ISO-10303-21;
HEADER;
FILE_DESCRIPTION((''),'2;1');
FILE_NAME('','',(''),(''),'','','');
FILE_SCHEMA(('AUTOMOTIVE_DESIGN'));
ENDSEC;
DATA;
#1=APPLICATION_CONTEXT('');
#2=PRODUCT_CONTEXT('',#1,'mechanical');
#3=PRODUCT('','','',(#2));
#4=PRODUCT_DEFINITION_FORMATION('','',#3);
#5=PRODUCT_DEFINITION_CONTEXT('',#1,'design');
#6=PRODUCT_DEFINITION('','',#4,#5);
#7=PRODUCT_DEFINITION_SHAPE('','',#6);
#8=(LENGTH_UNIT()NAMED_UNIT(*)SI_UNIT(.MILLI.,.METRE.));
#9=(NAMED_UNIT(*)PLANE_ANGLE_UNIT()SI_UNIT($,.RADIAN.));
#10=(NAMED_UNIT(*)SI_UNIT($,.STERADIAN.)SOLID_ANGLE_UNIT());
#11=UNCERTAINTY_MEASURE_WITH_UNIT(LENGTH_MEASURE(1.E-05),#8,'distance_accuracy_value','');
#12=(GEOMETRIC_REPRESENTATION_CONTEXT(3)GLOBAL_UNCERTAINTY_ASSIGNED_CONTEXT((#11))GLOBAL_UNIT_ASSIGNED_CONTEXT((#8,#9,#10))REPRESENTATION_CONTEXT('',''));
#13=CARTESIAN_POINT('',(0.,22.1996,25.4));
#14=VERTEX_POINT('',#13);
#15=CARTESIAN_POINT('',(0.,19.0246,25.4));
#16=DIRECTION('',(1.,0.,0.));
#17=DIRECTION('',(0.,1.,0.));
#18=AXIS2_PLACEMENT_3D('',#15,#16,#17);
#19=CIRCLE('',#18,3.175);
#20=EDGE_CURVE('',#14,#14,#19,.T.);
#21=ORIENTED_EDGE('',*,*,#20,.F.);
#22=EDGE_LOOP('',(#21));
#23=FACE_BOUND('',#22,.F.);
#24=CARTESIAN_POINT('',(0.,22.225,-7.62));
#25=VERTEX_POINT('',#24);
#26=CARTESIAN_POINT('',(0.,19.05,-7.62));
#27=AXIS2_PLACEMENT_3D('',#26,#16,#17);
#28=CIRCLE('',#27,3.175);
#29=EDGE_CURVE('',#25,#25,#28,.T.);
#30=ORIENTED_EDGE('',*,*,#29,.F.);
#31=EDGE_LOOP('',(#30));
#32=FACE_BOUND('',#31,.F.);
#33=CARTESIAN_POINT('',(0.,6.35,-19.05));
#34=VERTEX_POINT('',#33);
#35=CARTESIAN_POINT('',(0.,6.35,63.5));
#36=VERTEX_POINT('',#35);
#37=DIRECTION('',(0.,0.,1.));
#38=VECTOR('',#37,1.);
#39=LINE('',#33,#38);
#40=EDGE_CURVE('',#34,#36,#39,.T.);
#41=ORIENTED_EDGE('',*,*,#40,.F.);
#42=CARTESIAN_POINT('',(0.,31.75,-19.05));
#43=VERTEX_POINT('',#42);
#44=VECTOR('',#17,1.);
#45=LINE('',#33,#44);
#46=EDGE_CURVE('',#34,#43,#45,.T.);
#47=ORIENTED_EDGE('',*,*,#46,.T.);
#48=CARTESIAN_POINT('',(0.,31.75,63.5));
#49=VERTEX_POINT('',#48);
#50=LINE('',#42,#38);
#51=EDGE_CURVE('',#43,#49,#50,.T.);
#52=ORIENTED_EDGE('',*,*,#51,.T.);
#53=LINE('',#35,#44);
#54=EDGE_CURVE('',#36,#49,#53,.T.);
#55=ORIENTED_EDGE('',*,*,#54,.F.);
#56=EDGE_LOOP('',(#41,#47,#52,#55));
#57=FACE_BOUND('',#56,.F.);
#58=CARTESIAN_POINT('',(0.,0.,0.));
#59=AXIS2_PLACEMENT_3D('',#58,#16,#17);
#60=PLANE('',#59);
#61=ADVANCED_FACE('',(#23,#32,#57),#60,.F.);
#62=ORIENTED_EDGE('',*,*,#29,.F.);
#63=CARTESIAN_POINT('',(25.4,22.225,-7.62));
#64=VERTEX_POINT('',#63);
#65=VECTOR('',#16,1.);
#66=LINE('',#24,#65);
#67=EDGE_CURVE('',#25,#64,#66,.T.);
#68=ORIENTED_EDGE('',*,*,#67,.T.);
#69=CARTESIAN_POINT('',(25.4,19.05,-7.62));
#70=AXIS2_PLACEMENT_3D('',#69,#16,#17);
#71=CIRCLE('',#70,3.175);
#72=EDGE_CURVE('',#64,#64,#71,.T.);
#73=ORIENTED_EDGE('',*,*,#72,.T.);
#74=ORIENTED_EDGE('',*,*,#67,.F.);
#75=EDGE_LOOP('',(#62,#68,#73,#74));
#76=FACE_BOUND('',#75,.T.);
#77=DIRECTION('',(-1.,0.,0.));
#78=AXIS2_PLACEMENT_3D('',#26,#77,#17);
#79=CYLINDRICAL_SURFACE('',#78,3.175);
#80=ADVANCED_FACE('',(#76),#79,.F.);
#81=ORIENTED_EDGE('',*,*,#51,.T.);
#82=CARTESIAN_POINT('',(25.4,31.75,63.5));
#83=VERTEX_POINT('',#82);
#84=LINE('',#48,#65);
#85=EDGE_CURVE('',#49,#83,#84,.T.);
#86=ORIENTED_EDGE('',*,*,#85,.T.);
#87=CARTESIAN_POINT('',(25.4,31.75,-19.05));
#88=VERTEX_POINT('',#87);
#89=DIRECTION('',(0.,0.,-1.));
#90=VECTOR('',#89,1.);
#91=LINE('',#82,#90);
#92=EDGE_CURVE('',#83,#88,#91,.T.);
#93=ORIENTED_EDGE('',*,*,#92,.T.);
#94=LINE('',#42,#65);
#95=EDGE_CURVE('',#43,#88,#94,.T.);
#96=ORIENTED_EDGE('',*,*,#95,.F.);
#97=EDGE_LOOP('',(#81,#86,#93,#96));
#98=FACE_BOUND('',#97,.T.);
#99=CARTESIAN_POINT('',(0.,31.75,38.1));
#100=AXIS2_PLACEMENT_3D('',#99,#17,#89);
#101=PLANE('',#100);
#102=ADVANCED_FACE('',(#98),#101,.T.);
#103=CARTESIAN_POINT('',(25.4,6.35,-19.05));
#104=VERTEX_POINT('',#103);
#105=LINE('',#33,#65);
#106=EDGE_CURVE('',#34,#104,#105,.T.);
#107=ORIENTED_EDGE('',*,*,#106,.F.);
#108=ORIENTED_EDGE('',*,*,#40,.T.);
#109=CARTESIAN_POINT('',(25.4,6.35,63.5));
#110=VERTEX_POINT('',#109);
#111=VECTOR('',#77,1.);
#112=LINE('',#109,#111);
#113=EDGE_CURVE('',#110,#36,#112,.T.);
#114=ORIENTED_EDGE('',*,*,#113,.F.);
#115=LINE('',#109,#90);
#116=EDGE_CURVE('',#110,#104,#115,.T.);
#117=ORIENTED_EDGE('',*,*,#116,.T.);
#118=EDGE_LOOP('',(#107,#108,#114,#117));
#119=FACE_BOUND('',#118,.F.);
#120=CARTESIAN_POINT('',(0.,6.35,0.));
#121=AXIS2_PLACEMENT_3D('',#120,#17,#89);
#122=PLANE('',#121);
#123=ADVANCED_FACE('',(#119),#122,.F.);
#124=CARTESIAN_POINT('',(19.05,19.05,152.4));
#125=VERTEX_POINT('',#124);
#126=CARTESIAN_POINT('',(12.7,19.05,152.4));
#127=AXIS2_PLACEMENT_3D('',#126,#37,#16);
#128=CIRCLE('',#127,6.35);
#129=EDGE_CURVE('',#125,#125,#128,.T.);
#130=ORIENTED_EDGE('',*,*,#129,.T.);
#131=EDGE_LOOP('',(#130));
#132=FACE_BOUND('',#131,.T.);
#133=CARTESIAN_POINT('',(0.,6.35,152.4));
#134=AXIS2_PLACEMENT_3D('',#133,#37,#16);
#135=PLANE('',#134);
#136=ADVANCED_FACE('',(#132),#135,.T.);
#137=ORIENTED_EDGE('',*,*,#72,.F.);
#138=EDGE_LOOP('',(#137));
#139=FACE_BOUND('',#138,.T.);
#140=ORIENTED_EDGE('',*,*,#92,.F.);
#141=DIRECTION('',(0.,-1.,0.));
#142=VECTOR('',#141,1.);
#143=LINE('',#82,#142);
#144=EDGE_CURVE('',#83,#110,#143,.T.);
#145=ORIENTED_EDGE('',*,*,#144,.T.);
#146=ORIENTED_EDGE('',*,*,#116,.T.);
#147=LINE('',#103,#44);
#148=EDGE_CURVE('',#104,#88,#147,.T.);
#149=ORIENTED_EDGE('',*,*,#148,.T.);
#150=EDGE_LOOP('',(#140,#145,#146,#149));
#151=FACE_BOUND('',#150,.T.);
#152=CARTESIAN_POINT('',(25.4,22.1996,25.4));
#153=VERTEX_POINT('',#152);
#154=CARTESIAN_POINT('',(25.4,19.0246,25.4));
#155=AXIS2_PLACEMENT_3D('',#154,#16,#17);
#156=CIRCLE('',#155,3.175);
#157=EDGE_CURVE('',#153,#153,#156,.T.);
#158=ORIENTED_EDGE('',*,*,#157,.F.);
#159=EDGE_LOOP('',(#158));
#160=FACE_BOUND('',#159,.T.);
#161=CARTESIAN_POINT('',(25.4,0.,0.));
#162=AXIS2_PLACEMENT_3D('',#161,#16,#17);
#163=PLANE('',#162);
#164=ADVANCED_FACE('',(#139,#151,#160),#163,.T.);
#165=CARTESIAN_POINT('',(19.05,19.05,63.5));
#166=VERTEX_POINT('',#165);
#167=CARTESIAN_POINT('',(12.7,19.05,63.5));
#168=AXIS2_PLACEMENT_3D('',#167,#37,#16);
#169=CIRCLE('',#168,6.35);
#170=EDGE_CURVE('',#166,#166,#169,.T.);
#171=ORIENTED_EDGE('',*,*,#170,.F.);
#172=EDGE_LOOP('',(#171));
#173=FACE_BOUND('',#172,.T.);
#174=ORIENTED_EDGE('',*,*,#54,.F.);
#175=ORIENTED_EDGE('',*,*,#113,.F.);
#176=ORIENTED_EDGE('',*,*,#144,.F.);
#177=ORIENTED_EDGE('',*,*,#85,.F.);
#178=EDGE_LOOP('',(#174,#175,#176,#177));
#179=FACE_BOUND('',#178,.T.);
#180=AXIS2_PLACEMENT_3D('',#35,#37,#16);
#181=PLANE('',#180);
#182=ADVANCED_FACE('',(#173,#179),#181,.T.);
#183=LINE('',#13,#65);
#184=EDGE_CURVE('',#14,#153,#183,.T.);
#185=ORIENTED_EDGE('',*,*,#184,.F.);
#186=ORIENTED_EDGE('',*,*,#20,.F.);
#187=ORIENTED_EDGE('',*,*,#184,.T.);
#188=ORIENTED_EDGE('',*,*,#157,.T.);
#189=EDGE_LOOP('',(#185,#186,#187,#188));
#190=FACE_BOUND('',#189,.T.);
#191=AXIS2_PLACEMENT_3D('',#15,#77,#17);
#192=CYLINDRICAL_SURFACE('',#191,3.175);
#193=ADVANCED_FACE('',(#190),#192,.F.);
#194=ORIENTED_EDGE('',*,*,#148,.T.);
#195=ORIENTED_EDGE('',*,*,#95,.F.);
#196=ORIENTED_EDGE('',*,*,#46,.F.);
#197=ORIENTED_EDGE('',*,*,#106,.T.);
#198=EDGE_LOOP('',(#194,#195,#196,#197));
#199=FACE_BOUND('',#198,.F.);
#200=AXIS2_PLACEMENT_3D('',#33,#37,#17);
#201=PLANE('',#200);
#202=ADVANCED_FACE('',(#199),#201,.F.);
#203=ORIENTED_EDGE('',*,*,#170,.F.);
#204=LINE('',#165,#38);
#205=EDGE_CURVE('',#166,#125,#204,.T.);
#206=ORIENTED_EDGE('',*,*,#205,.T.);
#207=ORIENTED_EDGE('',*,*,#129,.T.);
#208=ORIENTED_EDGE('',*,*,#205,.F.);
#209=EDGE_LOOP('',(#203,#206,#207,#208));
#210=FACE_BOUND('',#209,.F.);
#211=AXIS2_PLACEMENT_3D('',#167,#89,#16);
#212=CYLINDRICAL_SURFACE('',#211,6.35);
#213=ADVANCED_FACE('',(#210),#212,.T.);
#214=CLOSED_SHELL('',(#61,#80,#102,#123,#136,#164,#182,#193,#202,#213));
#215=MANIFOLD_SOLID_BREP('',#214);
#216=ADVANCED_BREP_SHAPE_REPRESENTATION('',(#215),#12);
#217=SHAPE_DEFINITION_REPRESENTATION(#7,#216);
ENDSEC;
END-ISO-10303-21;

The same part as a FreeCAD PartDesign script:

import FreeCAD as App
import Part
import Sketcher

V = App.Vector
Q = App.Units.Quantity

doc = App.newDocument("Part")
body = doc.addObject("PartDesign::Body", "Body")

# Sketch on YZ plane
sketch1 = body.newObject("Sketcher::SketchObject", "Sketch")
sketch1.AttachmentSupport = (doc.getObject("YZ_Plane"), [""])
sketch1.MapMode = "FlatFace"
sketch1.addGeometry(Part.LineSegment(V(31.75, -19.05, 0), V(31.75, 38.1, 0)), False)
sketch1.addGeometry(Part.LineSegment(V(31.75, 38.1, 0), V(6.35, 38.1, 0)), False)
sketch1.addGeometry(Part.LineSegment(V(6.35, 38.1, 0), V(6.35, -19.05, 0)), False)
sketch1.addGeometry(Part.LineSegment(V(6.35, -19.05, 0), V(31.75, -19.05, 0)), False)
sketch1.addGeometry(Part.Circle(V(19.05, -7.62, 0), V(0, 0, 1), 3.175), False)
sketch1.addGeometry(Part.Circle(V(19.0246, 25.4, 0), V(0, 0, 1), 3.175), False)
sketch1.addConstraint(Sketcher.Constraint("Coincident", 0, 2, 1, 1))
sketch1.addConstraint(Sketcher.Constraint("Coincident", 1, 2, 2, 1))
sketch1.addConstraint(Sketcher.Constraint("Coincident", 2, 2, 3, 1))
sketch1.addConstraint(Sketcher.Constraint("Coincident", 3, 2, 0, 1))
sketch1.addConstraint(Sketcher.Constraint("Vertical", 0))
sketch1.addConstraint(Sketcher.Constraint("Horizontal", 1))
sketch1.addConstraint(Sketcher.Constraint("Vertical", 2))
sketch1.addConstraint(Sketcher.Constraint("Horizontal", 3))
sketch1.addConstraint(Sketcher.Constraint("Equal", 4, 5))
sketch1.addConstraint(Sketcher.Constraint("Diameter", 4, Q("0.25 in")))
sketch1.addConstraint(Sketcher.Constraint("DistanceX", 1, 2, 1, 1, Q("1 in")))
sketch1.addConstraint(Sketcher.Constraint("DistanceY", -1, 1, 5, 3, Q("1 in")))
sketch1.addConstraint(Sketcher.Constraint("DistanceY", 0, 1, 0, 2, Q("2.25 in")))
sketch1.addConstraint(Sketcher.Constraint("DistanceY", -1, 1, 0, 2, Q("1.5 in")))
sketch1.addConstraint(Sketcher.Constraint("DistanceY", 4, 3, 5, 3, Q("1.3 in")))
sketch1.addConstraint(Sketcher.Constraint("DistanceX", -1, 1, 0, 2, Q("1.25 in")))
sketch1.addConstraint(Sketcher.Constraint("DistanceX", 4, 3, 0, 2, Q("0.5 in")))
sketch1.addConstraint(Sketcher.Constraint("DistanceX", -1, 1, 5, 3, Q("0.749 in")))
pad1 = body.newObject("PartDesign::Pad", "Pad")
pad1.Profile = sketch1
pad1.Length = Q("1 in")

# Sketch on XY plane
sketch2 = body.newObject("Sketcher::SketchObject", "Sketch001")
sketch2.AttachmentSupport = (doc.getObject("XY_Plane"), [""])
sketch2.MapMode = "FlatFace"
sketch2.AttachmentOffset = App.Placement(V(0, 0, 1.5 * 25.4), App.Rotation())
sketch2.addGeometry(Part.LineSegment(V(25.4, 31.75, 0), V(0, 31.75, 0)), False)
sketch2.addGeometry(Part.LineSegment(V(0, 31.75, 0), V(0, 6.35, 0)), False)
sketch2.addGeometry(Part.LineSegment(V(0, 6.35, 0), V(25.4, 6.35, 0)), False)
sketch2.addGeometry(Part.LineSegment(V(25.4, 6.35, 0), V(25.4, 31.75, 0)), False)
sketch2.addConstraint(Sketcher.Constraint("Coincident", 0, 2, 1, 1))
sketch2.addConstraint(Sketcher.Constraint("Coincident", 1, 2, 2, 1))
sketch2.addConstraint(Sketcher.Constraint("Coincident", 2, 2, 3, 1))
sketch2.addConstraint(Sketcher.Constraint("Coincident", 3, 2, 0, 1))
sketch2.addConstraint(Sketcher.Constraint("Horizontal", 0))
sketch2.addConstraint(Sketcher.Constraint("Vertical", 1))
sketch2.addConstraint(Sketcher.Constraint("Horizontal", 2))
sketch2.addConstraint(Sketcher.Constraint("Vertical", 3))
sketch2.addConstraint(Sketcher.Constraint("PointOnObject", 0, 2, -2))
sketch2.addConstraint(Sketcher.Constraint("Equal", 2, 1))
sketch2.addConstraint(Sketcher.Constraint("DistanceX", 0, 2, 0, 1, Q("1 in")))
sketch2.addConstraint(Sketcher.Constraint("DistanceY", -1, 1, 0, 2, Q("1.25 in")))
pad2 = body.newObject("PartDesign::Pad", "Pad001")
pad2.Profile = sketch2
pad2.Length = Q("1 in")

# Sketch on XY plane
sketch3 = body.newObject("Sketcher::SketchObject", "Sketch002")
sketch3.AttachmentSupport = (doc.getObject("XY_Plane"), [""])
sketch3.MapMode = "FlatFace"
sketch3.AttachmentOffset = App.Placement(V(0, 0, 2.5 * 25.4), App.Rotation())
sketch3.addGeometry(Part.Circle(V(12.7, 19.05, 0), V(0, 0, 1), 6.35), False)
sketch3.addConstraint(Sketcher.Constraint("Diameter", 0, Q("0.5 in")))
sketch3.addConstraint(Sketcher.Constraint("DistanceX", -1, 1, 0, 3, Q("0.5 in")))
sketch3.addConstraint(Sketcher.Constraint("DistanceY", -1, 1, 0, 3, Q("0.75 in")))
pad3 = body.newObject("PartDesign::Pad", "Pad002")
pad3.Profile = sketch3
pad3.Length = Q("3.5 in")

doc.recompute()
